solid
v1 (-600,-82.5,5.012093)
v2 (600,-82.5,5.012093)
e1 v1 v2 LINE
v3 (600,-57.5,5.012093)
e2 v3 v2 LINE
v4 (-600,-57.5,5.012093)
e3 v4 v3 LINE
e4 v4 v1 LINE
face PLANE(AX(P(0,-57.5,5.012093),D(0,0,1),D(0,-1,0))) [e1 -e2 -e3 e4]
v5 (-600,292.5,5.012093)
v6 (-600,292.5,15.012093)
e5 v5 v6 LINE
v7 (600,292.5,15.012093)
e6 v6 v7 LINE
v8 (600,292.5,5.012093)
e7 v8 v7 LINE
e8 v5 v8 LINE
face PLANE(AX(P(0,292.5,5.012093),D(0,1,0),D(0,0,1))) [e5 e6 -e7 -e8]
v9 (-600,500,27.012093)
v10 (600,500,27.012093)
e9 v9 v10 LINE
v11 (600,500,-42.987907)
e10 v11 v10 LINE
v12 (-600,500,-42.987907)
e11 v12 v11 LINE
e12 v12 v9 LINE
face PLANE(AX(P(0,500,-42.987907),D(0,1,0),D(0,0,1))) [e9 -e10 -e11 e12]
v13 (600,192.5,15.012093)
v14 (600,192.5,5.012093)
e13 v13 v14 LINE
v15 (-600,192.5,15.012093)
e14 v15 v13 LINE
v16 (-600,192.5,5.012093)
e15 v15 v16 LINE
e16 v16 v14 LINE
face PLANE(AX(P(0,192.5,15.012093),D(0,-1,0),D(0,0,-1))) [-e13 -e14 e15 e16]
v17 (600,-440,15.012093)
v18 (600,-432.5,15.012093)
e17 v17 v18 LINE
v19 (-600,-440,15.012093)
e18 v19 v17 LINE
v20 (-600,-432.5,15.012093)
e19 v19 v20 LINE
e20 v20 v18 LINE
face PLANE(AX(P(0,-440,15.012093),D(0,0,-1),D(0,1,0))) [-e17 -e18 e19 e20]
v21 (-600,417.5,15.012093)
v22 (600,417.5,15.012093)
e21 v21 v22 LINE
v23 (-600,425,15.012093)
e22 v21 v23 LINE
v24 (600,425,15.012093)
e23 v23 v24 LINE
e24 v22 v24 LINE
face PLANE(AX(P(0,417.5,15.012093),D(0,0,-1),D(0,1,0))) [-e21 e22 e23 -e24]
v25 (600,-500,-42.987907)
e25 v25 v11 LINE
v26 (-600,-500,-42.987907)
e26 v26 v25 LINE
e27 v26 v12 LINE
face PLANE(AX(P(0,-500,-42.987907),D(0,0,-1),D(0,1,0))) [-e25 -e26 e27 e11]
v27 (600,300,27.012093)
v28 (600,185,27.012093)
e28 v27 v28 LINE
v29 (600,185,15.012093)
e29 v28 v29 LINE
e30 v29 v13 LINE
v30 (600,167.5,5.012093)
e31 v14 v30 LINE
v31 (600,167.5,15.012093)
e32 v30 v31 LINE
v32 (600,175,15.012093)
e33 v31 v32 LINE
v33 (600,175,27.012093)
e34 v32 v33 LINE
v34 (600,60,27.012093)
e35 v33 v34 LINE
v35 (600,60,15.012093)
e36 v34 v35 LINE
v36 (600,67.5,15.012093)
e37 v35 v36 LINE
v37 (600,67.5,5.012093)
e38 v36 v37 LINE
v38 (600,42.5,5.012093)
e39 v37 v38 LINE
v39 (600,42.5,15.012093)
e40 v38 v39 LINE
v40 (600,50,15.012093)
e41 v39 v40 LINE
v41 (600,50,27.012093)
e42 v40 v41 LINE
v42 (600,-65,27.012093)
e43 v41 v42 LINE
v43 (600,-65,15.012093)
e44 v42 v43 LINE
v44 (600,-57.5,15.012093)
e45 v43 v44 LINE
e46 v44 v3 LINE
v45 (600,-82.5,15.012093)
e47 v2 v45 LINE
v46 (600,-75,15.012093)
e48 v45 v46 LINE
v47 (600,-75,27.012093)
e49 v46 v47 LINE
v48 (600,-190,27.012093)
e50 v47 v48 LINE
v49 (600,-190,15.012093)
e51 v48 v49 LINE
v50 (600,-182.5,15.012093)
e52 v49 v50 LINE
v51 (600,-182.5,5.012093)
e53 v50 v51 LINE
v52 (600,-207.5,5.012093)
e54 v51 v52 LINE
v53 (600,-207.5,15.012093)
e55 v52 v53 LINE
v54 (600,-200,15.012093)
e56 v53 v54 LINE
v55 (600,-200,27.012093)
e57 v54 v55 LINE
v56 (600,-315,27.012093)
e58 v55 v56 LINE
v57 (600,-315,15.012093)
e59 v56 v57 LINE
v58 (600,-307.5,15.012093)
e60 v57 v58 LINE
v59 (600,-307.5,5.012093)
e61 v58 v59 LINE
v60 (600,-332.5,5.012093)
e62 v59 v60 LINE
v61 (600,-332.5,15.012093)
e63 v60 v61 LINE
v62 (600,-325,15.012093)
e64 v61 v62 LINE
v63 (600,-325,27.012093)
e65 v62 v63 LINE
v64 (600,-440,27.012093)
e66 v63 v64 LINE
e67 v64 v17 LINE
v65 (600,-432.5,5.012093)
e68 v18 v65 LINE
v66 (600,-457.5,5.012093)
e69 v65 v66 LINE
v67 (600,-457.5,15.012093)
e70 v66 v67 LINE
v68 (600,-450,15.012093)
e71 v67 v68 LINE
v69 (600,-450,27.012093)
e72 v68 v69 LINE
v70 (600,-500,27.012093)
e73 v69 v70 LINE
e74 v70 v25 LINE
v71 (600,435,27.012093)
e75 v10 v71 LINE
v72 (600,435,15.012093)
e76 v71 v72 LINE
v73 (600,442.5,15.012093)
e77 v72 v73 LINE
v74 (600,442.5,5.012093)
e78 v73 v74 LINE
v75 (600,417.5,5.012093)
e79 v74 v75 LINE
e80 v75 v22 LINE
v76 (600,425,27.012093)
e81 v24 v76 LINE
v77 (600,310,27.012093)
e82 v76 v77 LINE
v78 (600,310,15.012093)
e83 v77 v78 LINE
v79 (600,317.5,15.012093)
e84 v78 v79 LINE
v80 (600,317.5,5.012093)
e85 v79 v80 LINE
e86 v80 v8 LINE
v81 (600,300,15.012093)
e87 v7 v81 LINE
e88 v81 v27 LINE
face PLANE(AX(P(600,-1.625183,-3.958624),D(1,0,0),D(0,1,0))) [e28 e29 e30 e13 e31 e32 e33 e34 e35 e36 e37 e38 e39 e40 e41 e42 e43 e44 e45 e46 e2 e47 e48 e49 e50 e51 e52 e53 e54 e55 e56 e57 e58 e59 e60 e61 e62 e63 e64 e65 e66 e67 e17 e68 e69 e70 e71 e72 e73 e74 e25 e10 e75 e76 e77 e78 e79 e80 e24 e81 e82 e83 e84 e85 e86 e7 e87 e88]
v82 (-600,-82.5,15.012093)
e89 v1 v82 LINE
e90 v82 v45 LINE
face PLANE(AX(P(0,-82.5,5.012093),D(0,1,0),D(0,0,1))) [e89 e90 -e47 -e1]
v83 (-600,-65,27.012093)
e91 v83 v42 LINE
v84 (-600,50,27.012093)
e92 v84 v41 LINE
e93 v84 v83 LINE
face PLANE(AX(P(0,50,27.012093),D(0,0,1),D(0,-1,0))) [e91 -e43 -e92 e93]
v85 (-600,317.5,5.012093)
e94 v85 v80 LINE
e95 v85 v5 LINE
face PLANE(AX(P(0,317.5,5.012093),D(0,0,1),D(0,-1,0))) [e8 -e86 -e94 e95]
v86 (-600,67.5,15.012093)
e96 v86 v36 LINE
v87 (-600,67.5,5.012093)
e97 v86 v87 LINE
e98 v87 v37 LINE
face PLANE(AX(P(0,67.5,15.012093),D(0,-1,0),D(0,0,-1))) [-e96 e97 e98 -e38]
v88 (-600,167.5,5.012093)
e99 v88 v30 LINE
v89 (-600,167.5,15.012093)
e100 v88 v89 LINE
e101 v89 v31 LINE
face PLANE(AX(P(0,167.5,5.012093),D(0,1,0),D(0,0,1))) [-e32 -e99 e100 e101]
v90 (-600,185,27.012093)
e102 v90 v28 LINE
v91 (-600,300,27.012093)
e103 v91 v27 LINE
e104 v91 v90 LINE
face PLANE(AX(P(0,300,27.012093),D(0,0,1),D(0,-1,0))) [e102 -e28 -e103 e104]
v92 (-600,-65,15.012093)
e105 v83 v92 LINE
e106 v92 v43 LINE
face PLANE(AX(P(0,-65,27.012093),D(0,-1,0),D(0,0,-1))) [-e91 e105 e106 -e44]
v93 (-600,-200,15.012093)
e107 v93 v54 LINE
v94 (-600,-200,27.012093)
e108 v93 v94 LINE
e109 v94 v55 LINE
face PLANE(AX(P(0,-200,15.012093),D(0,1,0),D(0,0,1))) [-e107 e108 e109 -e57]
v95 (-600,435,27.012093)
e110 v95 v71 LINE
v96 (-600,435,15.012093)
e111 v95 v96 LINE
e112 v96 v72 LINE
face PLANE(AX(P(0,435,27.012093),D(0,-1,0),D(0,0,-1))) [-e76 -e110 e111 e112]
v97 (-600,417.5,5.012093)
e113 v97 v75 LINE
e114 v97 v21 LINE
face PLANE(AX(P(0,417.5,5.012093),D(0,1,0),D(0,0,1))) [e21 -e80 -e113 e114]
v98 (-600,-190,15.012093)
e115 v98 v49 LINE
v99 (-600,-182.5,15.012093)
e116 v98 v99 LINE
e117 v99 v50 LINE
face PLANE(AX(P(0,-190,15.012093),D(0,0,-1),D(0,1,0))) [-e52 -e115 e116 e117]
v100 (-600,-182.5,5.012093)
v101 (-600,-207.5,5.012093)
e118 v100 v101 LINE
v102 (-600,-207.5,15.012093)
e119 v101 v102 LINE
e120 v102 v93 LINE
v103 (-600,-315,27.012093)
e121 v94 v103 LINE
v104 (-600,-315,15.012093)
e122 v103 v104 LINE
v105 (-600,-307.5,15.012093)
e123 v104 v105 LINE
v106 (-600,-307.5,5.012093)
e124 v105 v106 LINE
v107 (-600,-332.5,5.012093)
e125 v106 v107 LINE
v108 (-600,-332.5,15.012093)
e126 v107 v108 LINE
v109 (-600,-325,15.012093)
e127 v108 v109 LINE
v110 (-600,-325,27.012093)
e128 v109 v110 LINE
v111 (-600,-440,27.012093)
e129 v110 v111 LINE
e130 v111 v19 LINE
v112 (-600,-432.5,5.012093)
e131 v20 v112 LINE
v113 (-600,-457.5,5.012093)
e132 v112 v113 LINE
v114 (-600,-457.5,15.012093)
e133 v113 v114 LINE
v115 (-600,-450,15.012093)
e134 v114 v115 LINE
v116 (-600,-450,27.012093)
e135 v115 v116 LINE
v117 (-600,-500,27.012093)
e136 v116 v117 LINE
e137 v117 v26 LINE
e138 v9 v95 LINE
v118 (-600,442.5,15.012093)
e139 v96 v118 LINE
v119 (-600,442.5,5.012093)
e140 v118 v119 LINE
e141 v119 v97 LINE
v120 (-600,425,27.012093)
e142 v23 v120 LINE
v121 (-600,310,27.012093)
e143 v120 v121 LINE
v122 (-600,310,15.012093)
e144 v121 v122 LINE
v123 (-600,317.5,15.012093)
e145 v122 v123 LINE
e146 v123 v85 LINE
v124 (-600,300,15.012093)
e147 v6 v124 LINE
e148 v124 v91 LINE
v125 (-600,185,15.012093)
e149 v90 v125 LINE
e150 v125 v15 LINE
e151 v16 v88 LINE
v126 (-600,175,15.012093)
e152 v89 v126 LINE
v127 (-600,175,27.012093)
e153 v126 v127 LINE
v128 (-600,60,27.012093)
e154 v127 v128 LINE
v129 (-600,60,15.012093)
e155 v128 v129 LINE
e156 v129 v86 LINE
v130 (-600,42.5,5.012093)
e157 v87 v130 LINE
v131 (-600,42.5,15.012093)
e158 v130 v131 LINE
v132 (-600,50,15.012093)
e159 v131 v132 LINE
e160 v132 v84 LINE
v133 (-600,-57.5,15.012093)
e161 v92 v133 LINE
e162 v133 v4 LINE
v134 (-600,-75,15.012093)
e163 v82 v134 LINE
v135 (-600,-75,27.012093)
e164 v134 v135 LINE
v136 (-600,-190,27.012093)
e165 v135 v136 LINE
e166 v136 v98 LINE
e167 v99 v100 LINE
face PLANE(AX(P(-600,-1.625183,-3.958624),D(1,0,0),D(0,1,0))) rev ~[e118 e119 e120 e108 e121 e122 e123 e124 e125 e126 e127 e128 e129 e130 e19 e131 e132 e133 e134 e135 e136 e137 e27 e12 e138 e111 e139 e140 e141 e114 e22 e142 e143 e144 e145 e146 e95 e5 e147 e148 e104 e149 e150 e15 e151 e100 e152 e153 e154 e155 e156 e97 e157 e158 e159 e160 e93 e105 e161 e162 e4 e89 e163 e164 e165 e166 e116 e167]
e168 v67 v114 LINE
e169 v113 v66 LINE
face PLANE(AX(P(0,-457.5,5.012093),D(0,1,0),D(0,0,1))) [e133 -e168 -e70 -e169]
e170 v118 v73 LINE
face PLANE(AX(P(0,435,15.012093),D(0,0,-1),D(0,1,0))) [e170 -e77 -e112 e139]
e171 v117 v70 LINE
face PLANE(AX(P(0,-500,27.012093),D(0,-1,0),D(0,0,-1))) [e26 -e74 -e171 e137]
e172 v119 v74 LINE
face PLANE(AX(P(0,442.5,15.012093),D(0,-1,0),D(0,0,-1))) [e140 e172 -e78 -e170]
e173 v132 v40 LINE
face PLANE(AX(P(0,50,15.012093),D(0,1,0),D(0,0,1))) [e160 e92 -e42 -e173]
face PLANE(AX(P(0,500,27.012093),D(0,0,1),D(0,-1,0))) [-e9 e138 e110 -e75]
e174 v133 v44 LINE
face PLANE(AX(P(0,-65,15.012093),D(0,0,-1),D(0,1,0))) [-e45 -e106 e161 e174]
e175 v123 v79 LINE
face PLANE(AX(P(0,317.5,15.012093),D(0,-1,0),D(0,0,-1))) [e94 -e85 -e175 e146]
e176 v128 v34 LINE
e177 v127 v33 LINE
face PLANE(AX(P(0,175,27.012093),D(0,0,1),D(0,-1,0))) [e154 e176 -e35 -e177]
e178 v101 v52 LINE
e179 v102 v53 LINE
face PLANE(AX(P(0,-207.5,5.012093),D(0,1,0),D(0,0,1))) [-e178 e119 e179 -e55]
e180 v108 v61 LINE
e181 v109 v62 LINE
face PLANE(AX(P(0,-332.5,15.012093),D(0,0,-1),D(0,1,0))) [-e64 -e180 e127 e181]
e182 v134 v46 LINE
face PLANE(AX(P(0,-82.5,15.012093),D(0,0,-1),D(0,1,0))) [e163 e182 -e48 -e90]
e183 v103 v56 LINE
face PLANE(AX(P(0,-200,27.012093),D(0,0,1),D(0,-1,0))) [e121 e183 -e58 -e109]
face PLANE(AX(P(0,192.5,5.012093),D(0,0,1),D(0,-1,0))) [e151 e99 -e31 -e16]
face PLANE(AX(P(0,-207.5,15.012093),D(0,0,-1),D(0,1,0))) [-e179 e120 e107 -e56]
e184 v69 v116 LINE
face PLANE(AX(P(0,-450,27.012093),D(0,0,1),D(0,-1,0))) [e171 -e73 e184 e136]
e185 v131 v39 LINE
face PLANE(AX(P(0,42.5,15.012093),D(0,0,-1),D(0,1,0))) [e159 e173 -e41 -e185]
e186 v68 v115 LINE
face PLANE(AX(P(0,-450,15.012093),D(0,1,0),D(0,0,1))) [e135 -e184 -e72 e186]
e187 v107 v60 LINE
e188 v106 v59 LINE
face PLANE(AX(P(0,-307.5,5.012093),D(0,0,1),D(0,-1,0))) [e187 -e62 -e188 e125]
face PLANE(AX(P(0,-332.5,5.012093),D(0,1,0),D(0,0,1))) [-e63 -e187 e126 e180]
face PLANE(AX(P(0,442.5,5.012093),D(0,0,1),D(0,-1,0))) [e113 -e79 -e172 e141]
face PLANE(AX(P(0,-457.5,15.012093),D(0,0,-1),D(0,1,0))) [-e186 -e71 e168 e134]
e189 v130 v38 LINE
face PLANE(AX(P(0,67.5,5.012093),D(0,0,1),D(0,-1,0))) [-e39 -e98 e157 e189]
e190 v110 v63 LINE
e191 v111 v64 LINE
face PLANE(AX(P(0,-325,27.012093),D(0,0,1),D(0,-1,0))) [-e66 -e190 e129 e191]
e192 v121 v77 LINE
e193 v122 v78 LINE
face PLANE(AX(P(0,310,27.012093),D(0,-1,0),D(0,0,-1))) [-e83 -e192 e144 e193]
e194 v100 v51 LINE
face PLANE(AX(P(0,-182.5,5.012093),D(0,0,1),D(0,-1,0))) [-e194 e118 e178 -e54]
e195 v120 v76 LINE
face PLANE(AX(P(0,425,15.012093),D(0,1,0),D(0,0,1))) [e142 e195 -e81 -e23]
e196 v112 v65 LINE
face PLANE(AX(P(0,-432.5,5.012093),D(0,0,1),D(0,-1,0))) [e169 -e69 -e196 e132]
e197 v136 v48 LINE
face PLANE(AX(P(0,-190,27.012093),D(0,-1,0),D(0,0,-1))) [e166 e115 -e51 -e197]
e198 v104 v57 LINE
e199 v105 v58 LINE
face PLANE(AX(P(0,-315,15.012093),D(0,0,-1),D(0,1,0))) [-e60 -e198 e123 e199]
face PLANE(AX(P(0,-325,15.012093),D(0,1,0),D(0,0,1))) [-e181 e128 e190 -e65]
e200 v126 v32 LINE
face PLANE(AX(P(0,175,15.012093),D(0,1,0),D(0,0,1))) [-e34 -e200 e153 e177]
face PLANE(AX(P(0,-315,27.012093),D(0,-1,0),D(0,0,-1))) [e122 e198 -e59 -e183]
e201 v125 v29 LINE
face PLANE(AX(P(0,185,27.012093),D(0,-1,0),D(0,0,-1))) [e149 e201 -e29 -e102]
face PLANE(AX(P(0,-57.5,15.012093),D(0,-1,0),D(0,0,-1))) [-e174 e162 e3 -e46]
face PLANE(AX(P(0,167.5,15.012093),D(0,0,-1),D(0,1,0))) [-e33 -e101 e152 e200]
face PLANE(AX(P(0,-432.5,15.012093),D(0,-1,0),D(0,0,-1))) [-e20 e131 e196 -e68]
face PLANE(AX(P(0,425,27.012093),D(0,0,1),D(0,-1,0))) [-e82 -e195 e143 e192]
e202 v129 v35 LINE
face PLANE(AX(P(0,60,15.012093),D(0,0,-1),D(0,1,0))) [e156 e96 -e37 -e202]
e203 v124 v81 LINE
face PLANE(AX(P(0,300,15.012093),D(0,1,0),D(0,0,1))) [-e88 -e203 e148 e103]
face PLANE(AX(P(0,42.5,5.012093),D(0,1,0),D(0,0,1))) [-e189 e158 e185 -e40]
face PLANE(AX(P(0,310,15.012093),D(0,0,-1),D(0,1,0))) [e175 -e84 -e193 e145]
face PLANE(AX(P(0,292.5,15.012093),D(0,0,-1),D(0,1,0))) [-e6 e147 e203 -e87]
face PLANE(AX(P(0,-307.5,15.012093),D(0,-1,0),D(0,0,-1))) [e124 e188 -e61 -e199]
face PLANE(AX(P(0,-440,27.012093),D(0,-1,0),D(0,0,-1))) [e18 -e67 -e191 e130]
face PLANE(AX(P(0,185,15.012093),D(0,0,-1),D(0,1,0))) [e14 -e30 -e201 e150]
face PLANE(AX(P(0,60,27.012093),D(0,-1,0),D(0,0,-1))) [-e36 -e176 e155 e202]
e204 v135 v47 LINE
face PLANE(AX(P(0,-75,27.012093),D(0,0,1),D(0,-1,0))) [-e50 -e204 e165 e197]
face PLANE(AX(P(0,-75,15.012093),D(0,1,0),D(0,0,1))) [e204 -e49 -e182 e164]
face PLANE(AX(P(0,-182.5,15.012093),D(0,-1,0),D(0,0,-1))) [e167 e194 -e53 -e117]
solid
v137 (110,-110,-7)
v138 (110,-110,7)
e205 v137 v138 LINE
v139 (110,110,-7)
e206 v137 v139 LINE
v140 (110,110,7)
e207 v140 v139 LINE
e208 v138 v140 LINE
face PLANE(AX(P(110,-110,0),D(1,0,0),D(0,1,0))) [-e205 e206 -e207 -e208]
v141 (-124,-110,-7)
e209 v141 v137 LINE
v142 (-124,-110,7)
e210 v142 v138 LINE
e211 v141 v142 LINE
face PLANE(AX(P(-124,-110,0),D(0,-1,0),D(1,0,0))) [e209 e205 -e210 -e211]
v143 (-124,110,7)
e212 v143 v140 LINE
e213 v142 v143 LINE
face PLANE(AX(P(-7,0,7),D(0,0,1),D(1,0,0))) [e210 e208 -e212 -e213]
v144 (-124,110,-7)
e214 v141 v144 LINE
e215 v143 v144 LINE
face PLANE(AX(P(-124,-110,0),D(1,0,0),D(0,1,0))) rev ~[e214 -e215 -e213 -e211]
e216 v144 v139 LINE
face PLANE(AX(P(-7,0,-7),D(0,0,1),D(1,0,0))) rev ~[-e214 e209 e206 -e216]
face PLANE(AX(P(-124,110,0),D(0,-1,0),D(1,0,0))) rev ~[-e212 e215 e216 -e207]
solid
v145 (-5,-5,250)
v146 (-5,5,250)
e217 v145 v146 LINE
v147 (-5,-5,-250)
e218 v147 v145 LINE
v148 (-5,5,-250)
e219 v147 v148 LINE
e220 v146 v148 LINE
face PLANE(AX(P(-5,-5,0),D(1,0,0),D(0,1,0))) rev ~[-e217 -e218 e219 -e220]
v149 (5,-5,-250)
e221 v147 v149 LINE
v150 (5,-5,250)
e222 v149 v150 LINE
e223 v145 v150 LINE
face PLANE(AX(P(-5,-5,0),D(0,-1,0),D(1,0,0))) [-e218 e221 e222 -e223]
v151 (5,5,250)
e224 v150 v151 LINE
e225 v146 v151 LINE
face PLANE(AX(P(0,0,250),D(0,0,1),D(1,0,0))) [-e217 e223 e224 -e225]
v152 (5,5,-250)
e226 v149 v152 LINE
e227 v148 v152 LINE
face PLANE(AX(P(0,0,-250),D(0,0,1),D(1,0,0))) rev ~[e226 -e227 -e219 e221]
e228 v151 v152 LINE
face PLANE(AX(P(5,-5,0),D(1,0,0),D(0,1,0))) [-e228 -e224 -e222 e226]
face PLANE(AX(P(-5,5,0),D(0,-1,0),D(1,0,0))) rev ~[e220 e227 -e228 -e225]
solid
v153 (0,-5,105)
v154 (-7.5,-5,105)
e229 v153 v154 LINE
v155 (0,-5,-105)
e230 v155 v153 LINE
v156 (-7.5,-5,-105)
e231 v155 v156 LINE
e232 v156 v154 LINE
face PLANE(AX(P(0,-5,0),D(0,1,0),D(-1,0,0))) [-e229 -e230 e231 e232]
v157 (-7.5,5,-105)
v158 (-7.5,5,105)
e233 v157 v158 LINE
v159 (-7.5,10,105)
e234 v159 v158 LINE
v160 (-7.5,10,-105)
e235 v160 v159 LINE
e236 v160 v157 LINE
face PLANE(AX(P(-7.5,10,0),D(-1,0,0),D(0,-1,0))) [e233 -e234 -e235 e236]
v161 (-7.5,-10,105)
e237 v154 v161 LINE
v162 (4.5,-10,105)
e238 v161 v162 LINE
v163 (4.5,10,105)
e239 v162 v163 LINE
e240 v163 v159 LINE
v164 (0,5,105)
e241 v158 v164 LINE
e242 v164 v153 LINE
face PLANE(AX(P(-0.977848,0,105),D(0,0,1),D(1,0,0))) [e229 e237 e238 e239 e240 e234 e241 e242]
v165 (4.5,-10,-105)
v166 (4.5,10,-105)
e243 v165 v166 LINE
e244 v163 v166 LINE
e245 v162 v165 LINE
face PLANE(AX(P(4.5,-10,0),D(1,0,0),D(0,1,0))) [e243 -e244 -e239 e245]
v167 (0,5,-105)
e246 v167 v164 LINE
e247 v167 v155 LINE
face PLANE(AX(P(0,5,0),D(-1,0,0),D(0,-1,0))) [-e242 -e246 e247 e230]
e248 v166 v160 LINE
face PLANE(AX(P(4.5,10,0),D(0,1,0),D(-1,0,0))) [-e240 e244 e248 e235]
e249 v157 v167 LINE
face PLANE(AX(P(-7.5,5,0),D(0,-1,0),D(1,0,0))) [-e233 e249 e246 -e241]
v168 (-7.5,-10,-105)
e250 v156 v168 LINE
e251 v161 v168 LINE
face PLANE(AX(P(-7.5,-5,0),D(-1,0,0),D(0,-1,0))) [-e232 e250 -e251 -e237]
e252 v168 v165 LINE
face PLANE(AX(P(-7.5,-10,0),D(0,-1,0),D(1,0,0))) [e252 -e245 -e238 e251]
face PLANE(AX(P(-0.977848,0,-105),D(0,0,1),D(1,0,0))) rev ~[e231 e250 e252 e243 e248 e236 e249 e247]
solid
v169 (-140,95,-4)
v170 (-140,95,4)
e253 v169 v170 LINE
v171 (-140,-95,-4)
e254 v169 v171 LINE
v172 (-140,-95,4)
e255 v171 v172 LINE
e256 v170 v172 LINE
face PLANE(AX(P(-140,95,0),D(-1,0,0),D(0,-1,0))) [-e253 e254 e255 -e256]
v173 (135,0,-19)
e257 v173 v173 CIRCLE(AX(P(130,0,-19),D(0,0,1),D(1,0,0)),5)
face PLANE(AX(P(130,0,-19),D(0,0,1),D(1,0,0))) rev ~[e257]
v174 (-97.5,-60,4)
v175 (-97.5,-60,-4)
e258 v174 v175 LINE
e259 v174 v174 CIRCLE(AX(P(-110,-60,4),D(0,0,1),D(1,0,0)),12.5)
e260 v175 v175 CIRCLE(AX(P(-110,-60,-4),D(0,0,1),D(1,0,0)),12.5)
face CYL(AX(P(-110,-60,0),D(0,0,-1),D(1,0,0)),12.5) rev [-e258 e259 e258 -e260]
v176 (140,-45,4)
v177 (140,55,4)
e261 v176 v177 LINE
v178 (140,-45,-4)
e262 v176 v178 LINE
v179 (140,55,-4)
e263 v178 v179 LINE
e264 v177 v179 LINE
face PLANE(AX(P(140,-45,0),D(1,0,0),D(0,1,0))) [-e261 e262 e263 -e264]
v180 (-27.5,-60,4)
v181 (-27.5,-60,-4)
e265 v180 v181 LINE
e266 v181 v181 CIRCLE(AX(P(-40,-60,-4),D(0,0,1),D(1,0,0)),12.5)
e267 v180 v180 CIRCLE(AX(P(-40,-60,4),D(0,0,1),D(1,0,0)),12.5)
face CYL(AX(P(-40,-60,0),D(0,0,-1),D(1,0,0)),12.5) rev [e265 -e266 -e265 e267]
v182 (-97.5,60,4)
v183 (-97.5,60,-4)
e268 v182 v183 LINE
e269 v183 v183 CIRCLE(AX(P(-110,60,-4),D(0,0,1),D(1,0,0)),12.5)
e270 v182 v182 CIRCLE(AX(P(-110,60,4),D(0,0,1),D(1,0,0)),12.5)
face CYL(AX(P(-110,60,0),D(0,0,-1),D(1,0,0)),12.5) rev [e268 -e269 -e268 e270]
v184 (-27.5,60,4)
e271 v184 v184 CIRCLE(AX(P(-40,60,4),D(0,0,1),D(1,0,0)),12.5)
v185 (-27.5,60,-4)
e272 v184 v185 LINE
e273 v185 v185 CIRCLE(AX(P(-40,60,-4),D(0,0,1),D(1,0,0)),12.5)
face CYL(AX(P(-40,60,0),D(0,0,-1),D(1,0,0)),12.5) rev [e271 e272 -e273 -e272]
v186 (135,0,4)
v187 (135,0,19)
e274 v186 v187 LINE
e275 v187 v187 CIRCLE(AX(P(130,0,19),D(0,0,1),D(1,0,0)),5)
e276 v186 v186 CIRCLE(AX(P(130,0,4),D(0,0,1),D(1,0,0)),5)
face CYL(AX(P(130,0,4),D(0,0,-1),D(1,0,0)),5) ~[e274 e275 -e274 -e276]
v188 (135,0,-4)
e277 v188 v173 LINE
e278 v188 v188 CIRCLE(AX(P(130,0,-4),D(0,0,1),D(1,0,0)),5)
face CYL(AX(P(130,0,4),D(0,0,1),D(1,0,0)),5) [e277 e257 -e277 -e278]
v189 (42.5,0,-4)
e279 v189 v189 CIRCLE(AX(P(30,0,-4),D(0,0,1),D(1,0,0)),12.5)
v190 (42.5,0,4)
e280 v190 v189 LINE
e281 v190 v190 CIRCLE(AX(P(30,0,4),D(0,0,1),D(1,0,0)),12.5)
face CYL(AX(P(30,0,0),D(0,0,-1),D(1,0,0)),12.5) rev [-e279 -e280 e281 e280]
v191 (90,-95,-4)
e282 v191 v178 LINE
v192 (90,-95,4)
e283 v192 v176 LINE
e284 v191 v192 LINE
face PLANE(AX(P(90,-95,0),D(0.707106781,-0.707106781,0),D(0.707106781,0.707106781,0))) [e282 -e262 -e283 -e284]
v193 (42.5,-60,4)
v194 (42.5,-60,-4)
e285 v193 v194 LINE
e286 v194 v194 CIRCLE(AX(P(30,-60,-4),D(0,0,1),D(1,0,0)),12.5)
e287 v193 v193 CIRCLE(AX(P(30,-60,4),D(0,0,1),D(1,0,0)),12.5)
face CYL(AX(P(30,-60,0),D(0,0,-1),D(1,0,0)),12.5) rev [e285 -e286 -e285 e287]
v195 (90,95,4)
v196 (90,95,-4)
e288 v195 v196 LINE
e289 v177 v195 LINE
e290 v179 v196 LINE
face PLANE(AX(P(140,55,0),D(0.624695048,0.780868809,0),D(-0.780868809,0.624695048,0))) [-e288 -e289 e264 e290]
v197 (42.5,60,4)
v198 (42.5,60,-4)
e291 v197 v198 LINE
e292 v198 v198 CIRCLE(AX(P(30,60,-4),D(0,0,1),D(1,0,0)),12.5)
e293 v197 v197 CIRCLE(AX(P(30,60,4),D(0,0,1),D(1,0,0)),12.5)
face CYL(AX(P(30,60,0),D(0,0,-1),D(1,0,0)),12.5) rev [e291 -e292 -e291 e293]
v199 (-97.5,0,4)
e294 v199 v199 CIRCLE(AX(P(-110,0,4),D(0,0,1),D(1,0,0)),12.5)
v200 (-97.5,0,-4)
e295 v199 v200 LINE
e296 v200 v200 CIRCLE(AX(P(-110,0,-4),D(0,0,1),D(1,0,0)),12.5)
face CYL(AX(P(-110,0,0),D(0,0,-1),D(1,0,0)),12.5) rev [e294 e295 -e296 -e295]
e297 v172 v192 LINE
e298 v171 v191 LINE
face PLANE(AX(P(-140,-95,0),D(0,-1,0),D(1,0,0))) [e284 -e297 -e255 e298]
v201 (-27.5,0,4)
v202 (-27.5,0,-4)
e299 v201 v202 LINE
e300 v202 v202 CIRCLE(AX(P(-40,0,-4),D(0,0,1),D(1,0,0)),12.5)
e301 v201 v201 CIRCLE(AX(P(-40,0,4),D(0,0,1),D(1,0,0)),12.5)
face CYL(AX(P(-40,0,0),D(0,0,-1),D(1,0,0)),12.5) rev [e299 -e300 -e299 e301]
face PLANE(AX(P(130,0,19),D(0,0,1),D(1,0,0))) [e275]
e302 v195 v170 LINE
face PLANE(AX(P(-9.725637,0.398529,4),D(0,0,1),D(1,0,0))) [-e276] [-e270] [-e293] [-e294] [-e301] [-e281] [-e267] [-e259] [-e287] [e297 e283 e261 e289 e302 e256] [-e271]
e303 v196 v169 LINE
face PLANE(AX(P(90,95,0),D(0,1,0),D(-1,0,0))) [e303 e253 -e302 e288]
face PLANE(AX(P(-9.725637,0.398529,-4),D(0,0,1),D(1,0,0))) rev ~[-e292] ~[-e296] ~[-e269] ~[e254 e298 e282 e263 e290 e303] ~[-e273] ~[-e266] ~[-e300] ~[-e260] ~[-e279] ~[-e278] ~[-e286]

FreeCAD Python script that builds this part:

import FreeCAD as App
import Part
import Sketcher

V = App.Vector
Q = App.Units.Quantity

doc = App.newDocument("Part")
body = doc.addObject("PartDesign::Body", "Body")

sketch1 = body.newObject("Sketcher::SketchObject", "Sketch")
sketch1.AttachmentSupport = (doc.getObject("YZ_Plane"), [""])
sketch1.MapMode = "FlatFace"
sketch1.addGeometry([
    Part.LineSegment(V(-450, 27, 0), V(-500, 27, 0)),
    Part.LineSegment(V(-500, 27, 0), V(-500, -43, 0)),
    Part.LineSegment(V(-500, -43, 0), V(500, -43, 0)),
    Part.LineSegment(V(500, -43, 0), V(500, 27, 0)),
    Part.LineSegment(V(500, 27, 0), V(435, 27, 0)),
    Part.LineSegment(V(435, 27, 0), V(435, 15, 0)),
    Part.LineSegment(V(435, 15, 0), V(442, 15, 0)),
    Part.LineSegment(V(442, 15, 0), V(442, 5, 0)),
    Part.LineSegment(V(442, 5, 0), V(418, 5, 0)),
    Part.LineSegment(V(418, 5, 0), V(418, 15, 0)),
    Part.LineSegment(V(418, 15, 0), V(425, 15, 0)),
    Part.LineSegment(V(425, 15, 0), V(425, 27, 0)),
    Part.LineSegment(V(425, 27, 0), V(310, 27, 0)),
    Part.LineSegment(V(310, 27, 0), V(310, 15, 0)),
    Part.LineSegment(V(310, 15, 0), V(318, 15, 0)),
    Part.LineSegment(V(318, 15, 0), V(318, 5, 0)),
    Part.LineSegment(V(318, 5, 0), V(292, 5, 0)),
    Part.LineSegment(V(292, 5, 0), V(292, 15, 0)),
    Part.LineSegment(V(292, 15, 0), V(300, 15, 0)),
    Part.LineSegment(V(300, 15, 0), V(300, 27, 0)),
    Part.LineSegment(V(300, 27, 0), V(185, 27, 0)),
    Part.LineSegment(V(185, 27, 0), V(185, 15, 0)),
    Part.LineSegment(V(185, 15, 0), V(192, 15, 0)),
    Part.LineSegment(V(192, 15, 0), V(192, 5, 0)),
    Part.LineSegment(V(192, 5, 0), V(168, 5, 0)),
    Part.LineSegment(V(168, 5, 0), V(168, 15, 0)),
    Part.LineSegment(V(168, 15, 0), V(175, 15, 0)),
    Part.LineSegment(V(175, 15, 0), V(175, 27, 0)),
    Part.LineSegment(V(175, 27, 0), V(60, 27, 0)),
    Part.LineSegment(V(60, 27, 0), V(60, 15, 0)),
    Part.LineSegment(V(60, 15, 0), V(68, 15, 0)),
    Part.LineSegment(V(68, 15, 0), V(68, 5, 0)),
    Part.LineSegment(V(68, 5, 0), V(42, 5, 0)),
    Part.LineSegment(V(42, 5, 0), V(42, 15, 0)),
    Part.LineSegment(V(42, 15, 0), V(50, 15, 0)),
    Part.LineSegment(V(50, 15, 0), V(50, 27, 0)),
    Part.LineSegment(V(50, 27, 0), V(-65, 27, 0)),
    Part.LineSegment(V(-65, 27, 0), V(-65, 15, 0)),
    Part.LineSegment(V(-65, 15, 0), V(-58, 15, 0)),
    Part.LineSegment(V(-58, 15, 0), V(-58, 5, 0)),
    Part.LineSegment(V(-58, 5, 0), V(-82, 5, 0)),
    Part.LineSegment(V(-82, 5, 0), V(-82, 15, 0)),
    Part.LineSegment(V(-82, 15, 0), V(-75, 15, 0)),
    Part.LineSegment(V(-75, 15, 0), V(-75, 27, 0)),
    Part.LineSegment(V(-75, 27, 0), V(-190, 27, 0)),
    Part.LineSegment(V(-190, 27, 0), V(-190, 15, 0)),
    Part.LineSegment(V(-190, 15, 0), V(-182, 15, 0)),
    Part.LineSegment(V(-182, 15, 0), V(-182, 5, 0)),
    Part.LineSegment(V(-182, 5, 0), V(-208, 5, 0)),
    Part.LineSegment(V(-208, 5, 0), V(-208, 15, 0)),
    Part.LineSegment(V(-208, 15, 0), V(-200, 15, 0)),
    Part.LineSegment(V(-200, 15, 0), V(-200, 27, 0)),
    Part.LineSegment(V(-200, 27, 0), V(-315, 27, 0)),
    Part.LineSegment(V(-315, 27, 0), V(-315, 15, 0)),
    Part.LineSegment(V(-315, 15, 0), V(-308, 15, 0)),
    Part.LineSegment(V(-308, 15, 0), V(-308, 5, 0)),
    Part.LineSegment(V(-308, 5, 0), V(-332, 5, 0)),
    Part.LineSegment(V(-332, 5, 0), V(-332, 15, 0)),
    Part.LineSegment(V(-332, 15, 0), V(-325, 15, 0)),
    Part.LineSegment(V(-325, 15, 0), V(-325, 27, 0)),
    Part.LineSegment(V(-325, 27, 0), V(-440, 27, 0)),
    Part.LineSegment(V(-440, 27, 0), V(-440, 15, 0)),
    Part.LineSegment(V(-440, 15, 0), V(-432, 15, 0)),
    Part.LineSegment(V(-432, 15, 0), V(-432, 5, 0)),
    Part.LineSegment(V(-432, 5, 0), V(-458, 5, 0)),
    Part.LineSegment(V(-458, 5, 0), V(-458, 15, 0)),
    Part.LineSegment(V(-458, 15, 0), V(-450, 15, 0)),
    Part.LineSegment(V(-450, 15, 0), V(-450, 27, 0)),
], False)
sketch1.addConstraint([
    Sketcher.Constraint("Coincident", 0, 2, 1, 1),
    Sketcher.Constraint("Coincident", 1, 2, 2, 1),
    Sketcher.Constraint("Coincident", 2, 2, 3, 1),
    Sketcher.Constraint("Coincident", 3, 2, 4, 1),
    Sketcher.Constraint("Coincident", 4, 2, 5, 1),
    Sketcher.Constraint("Coincident", 5, 2, 6, 1),
    Sketcher.Constraint("Coincident", 6, 2, 7, 1),
    Sketcher.Constraint("Coincident", 7, 2, 8, 1),
    Sketcher.Constraint("Coincident", 8, 2, 9, 1),
    Sketcher.Constraint("Coincident", 9, 2, 10, 1),
    Sketcher.Constraint("Coincident", 10, 2, 11, 1),
    Sketcher.Constraint("Coincident", 11, 2, 12, 1),
    Sketcher.Constraint("Coincident", 12, 2, 13, 1),
    Sketcher.Constraint("Coincident", 13, 2, 14, 1),
    Sketcher.Constraint("Coincident", 14, 2, 15, 1),
    Sketcher.Constraint("Coincident", 15, 2, 16, 1),
    Sketcher.Constraint("Coincident", 16, 2, 17, 1),
    Sketcher.Constraint("Coincident", 17, 2, 18, 1),
    Sketcher.Constraint("Coincident", 18, 2, 19, 1),
    Sketcher.Constraint("Coincident", 19, 2, 20, 1),
    Sketcher.Constraint("Coincident", 20, 2, 21, 1),
    Sketcher.Constraint("Coincident", 21, 2, 22, 1),
    Sketcher.Constraint("Coincident", 22, 2, 23, 1),
    Sketcher.Constraint("Coincident", 23, 2, 24, 1),
    Sketcher.Constraint("Coincident", 24, 2, 25, 1),
    Sketcher.Constraint("Coincident", 25, 2, 26, 1),
    Sketcher.Constraint("Coincident", 26, 2, 27, 1),
    Sketcher.Constraint("Coincident", 27, 2, 28, 1),
    Sketcher.Constraint("Coincident", 28, 2, 29, 1),
    Sketcher.Constraint("Coincident", 29, 2, 30, 1),
    Sketcher.Constraint("Coincident", 30, 2, 31, 1),
    Sketcher.Constraint("Coincident", 31, 2, 32, 1),
    Sketcher.Constraint("Coincident", 32, 2, 33, 1),
    Sketcher.Constraint("Coincident", 33, 2, 34, 1),
    Sketcher.Constraint("Coincident", 34, 2, 35, 1),
    Sketcher.Constraint("Coincident", 35, 2, 36, 1),
    Sketcher.Constraint("Coincident", 36, 2, 37, 1),
    Sketcher.Constraint("Coincident", 37, 2, 38, 1),
    Sketcher.Constraint("Coincident", 38, 2, 39, 1),
    Sketcher.Constraint("Coincident", 39, 2, 40, 1),
    Sketcher.Constraint("Coincident", 40, 2, 41, 1),
    Sketcher.Constraint("Coincident", 41, 2, 42, 1),
    Sketcher.Constraint("Coincident", 42, 2, 43, 1),
    Sketcher.Constraint("Coincident", 43, 2, 44, 1),
    Sketcher.Constraint("Coincident", 44, 2, 45, 1),
    Sketcher.Constraint("Coincident", 45, 2, 46, 1),
    Sketcher.Constraint("Coincident", 46, 2, 47, 1),
    Sketcher.Constraint("Coincident", 47, 2, 48, 1),
    Sketcher.Constraint("Coincident", 48, 2, 49, 1),
    Sketcher.Constraint("Coincident", 49, 2, 50, 1),
    Sketcher.Constraint("Coincident", 50, 2, 51, 1),
    Sketcher.Constraint("Coincident", 51, 2, 52, 1),
    Sketcher.Constraint("Coincident", 52, 2, 53, 1),
    Sketcher.Constraint("Coincident", 53, 2, 54, 1),
    Sketcher.Constraint("Coincident", 54, 2, 55, 1),
    Sketcher.Constraint("Coincident", 55, 2, 56, 1),
    Sketcher.Constraint("Coincident", 56, 2, 57, 1),
    Sketcher.Constraint("Coincident", 57, 2, 58, 1),
    Sketcher.Constraint("Coincident", 58, 2, 59, 1),
    Sketcher.Constraint("Coincident", 59, 2, 60, 1),
    Sketcher.Constraint("Coincident", 60, 2, 61, 1),
    Sketcher.Constraint("Coincident", 61, 2, 62, 1),
    Sketcher.Constraint("Coincident", 62, 2, 63, 1),
    Sketcher.Constraint("Coincident", 63, 2, 64, 1),
    Sketcher.Constraint("Coincident", 64, 2, 65, 1),
    Sketcher.Constraint("Coincident", 65, 2, 66, 1),
    Sketcher.Constraint("Coincident", 66, 2, 67, 1),
    Sketcher.Constraint("Coincident", 67, 2, 0, 1),
    Sketcher.Constraint("Horizontal", 0),
    Sketcher.Constraint("Vertical", 1),
    Sketcher.Constraint("Horizontal", 2),
    Sketcher.Constraint("Vertical", 3),
    Sketcher.Constraint("Horizontal", 4),
    Sketcher.Constraint("Vertical", 5),
    Sketcher.Constraint("Horizontal", 6),
    Sketcher.Constraint("Vertical", 7),
    Sketcher.Constraint("Horizontal", 8),
    Sketcher.Constraint("Vertical", 9),
    Sketcher.Constraint("Horizontal", 10),
    Sketcher.Constraint("Vertical", 11),
    Sketcher.Constraint("Horizontal", 12),
    Sketcher.Constraint("Vertical", 13),
    Sketcher.Constraint("Horizontal", 14),
    Sketcher.Constraint("Vertical", 15),
    Sketcher.Constraint("Horizontal", 16),
    Sketcher.Constraint("Vertical", 17),
    Sketcher.Constraint("Horizontal", 18),
    Sketcher.Constraint("Vertical", 19),
    Sketcher.Constraint("Horizontal", 20),
    Sketcher.Constraint("Vertical", 21),
    Sketcher.Constraint("Horizontal", 22),
    Sketcher.Constraint("Vertical", 23),
    Sketcher.Constraint("Horizontal", 24),
    Sketcher.Constraint("Vertical", 25),
    Sketcher.Constraint("Horizontal", 26),
    Sketcher.Constraint("Vertical", 27),
    Sketcher.Constraint("Horizontal", 28),
    Sketcher.Constraint("Vertical", 29),
    Sketcher.Constraint("Horizontal", 30),
    Sketcher.Constraint("Vertical", 31),
    Sketcher.Constraint("Horizontal", 32),
    Sketcher.Constraint("Vertical", 33),
    Sketcher.Constraint("Horizontal", 34),
    Sketcher.Constraint("Vertical", 35),
    Sketcher.Constraint("Horizontal", 36),
    Sketcher.Constraint("Vertical", 37),
    Sketcher.Constraint("Horizontal", 38),
    Sketcher.Constraint("Vertical", 39),
    Sketcher.Constraint("Horizontal", 40),
    Sketcher.Constraint("Vertical", 41),
    Sketcher.Constraint("Horizontal", 42),
    Sketcher.Constraint("Vertical", 43),
    Sketcher.Constraint("Horizontal", 44),
    Sketcher.Constraint("Vertical", 45),
    Sketcher.Constraint("Horizontal", 46),
    Sketcher.Constraint("Vertical", 47),
    Sketcher.Constraint("Horizontal", 48),
    Sketcher.Constraint("Vertical", 49),
    Sketcher.Constraint("Horizontal", 50),
    Sketcher.Constraint("Vertical", 51),
    Sketcher.Constraint("Horizontal", 52),
    Sketcher.Constraint("Vertical", 53),
    Sketcher.Constraint("Horizontal", 54),
    Sketcher.Constraint("Vertical", 55),
    Sketcher.Constraint("Horizontal", 56),
    Sketcher.Constraint("Vertical", 57),
    Sketcher.Constraint("Horizontal", 58),
    Sketcher.Constraint("Vertical", 59),
    Sketcher.Constraint("Horizontal", 60),
    Sketcher.Constraint("Vertical", 61),
    Sketcher.Constraint("Horizontal", 62),
    Sketcher.Constraint("Vertical", 63),
    Sketcher.Constraint("Horizontal", 64),
    Sketcher.Constraint("Vertical", 65),
    Sketcher.Constraint("Horizontal", 66),
    Sketcher.Constraint("Vertical", 67),
    Sketcher.Constraint("Symmetric", 0, 2, 3, 2, -2),
    Sketcher.Constraint("Horizontal", 6, 2, 9, 2),
    Sketcher.Constraint("Horizontal", 4, 2, 11, 2),
    Sketcher.Constraint("Horizontal", 10, 2, 13, 2),
    Sketcher.Constraint("Horizontal", 8, 2, 15, 2),
    Sketcher.Constraint("Horizontal", 14, 2, 17, 2),
    Sketcher.Constraint("Horizontal", 12, 2, 19, 2),
    Sketcher.Constraint("Horizontal", 18, 2, 21, 2),
    Sketcher.Constraint("Horizontal", 16, 2, 23, 2),
    Sketcher.Constraint("Horizontal", 22, 2, 25, 2),
    Sketcher.Constraint("Horizontal", 20, 2, 27, 2),
    Sketcher.Constraint("Horizontal", 26, 2, 29, 2),
    Sketcher.Constraint("Horizontal", 24, 2, 31, 2),
    Sketcher.Constraint("Horizontal", 30, 2, 33, 2),
    Sketcher.Constraint("Horizontal", 28, 2, 35, 2),
    Sketcher.Constraint("Horizontal", 34, 2, 37, 2),
    Sketcher.Constraint("Horizontal", 32, 2, 39, 2),
    Sketcher.Constraint("Horizontal", 38, 2, 41, 2),
    Sketcher.Constraint("Horizontal", 36, 2, 43, 2),
    Sketcher.Constraint("Horizontal", 42, 2, 45, 2),
    Sketcher.Constraint("Horizontal", 40, 2, 47, 2),
    Sketcher.Constraint("Horizontal", 46, 2, 49, 2),
    Sketcher.Constraint("Horizontal", 44, 2, 51, 2),
    Sketcher.Constraint("Horizontal", 50, 2, 53, 2),
    Sketcher.Constraint("Horizontal", 48, 2, 55, 2),
    Sketcher.Constraint("Horizontal", 54, 2, 57, 2),
    Sketcher.Constraint("Horizontal", 52, 2, 59, 2),
    Sketcher.Constraint("Horizontal", 58, 2, 61, 2),
    Sketcher.Constraint("Horizontal", 56, 2, 63, 2),
    Sketcher.Constraint("Horizontal", 62, 2, 65, 2),
    Sketcher.Constraint("Equal", 6, 10),
    Sketcher.Constraint("Equal", 10, 14),
    Sketcher.Constraint("Equal", 8, 16),
    Sketcher.Constraint("Equal", 14, 18),
    Sketcher.Constraint("Equal", 12, 20),
    Sketcher.Constraint("Equal", 18, 22),
    Sketcher.Constraint("Equal", 16, 24),
    Sketcher.Constraint("Equal", 22, 26),
    Sketcher.Constraint("Equal", 20, 28),
    Sketcher.Constraint("Equal", 26, 30),
    Sketcher.Constraint("Equal", 24, 32),
    Sketcher.Constraint("Equal", 30, 34),
    Sketcher.Constraint("Equal", 28, 36),
    Sketcher.Constraint("Equal", 34, 38),
    Sketcher.Constraint("Equal", 32, 40),
    Sketcher.Constraint("Equal", 38, 42),
    Sketcher.Constraint("Equal", 36, 44),
    Sketcher.Constraint("Equal", 42, 46),
    Sketcher.Constraint("Equal", 40, 48),
    Sketcher.Constraint("Equal", 46, 50),
    Sketcher.Constraint("Equal", 44, 52),
    Sketcher.Constraint("Equal", 50, 54),
    Sketcher.Constraint("Equal", 48, 56),
    Sketcher.Constraint("Equal", 54, 58),
    Sketcher.Constraint("Equal", 52, 60),
    Sketcher.Constraint("Equal", 58, 62),
    Sketcher.Constraint("Equal", 56, 64),
    Sketcher.Constraint("Equal", 62, 66),
    Sketcher.Constraint("DistanceX", 0, 2, 0, 1, Q("50 mm")),
    Sketcher.Constraint("DistanceX", 2, 1, 2, 2, Q("1000 mm")),
    Sketcher.Constraint("DistanceX", 4, 2, 4, 1, Q("65 mm")),
    Sketcher.Constraint("DistanceX", 8, 2, 8, 1, Q("25 mm")),
    Sketcher.Constraint("DistanceX", 12, 2, 12, 1, Q("115 mm")),
    Sketcher.Constraint("DistanceY", 1, 2, 1, 1, Q("70 mm")),
    Sketcher.Constraint("DistanceY", 5, 2, 5, 1, Q("12 mm")),
    Sketcher.Constraint("DistanceY", 7, 2, 7, 1, Q("10 mm")),
    Sketcher.Constraint("DistanceY", -1, 1, 0, 2, Q("27.012093 mm")),
])
pad1 = body.newObject("PartDesign::Pad", "Pad")
pad1.Profile = sketch1
pad1.Type = "TwoLengths"
pad1.Length = 600
pad1.Length2 = 600
body2 = doc.addObject("PartDesign::Body", "Body001")

sketch2 = body2.newObject("Sketcher::SketchObject", "Sketch001")
sketch2.AttachmentSupport = (doc.getObject("XY_Plane001"), [""])
sketch2.MapMode = "FlatFace"
sketch2.addGeometry([
    Part.LineSegment(V(90, 95, 0), V(-140, 95, 0)),
    Part.LineSegment(V(-140, 95, 0), V(-140, -95, 0)),
    Part.LineSegment(V(-140, -95, 0), V(90, -95, 0)),
    Part.LineSegment(V(90, -95, 0), V(140, -45, 0)),
    Part.LineSegment(V(140, -45, 0), V(140, 55, 0)),
    Part.LineSegment(V(140, 55, 0), V(90, 95, 0)),
    Part.Circle(V(-110, -60, 0), V(0, 0, 1), 12),
    Part.Circle(V(-40, -60, 0), V(0, 0, 1), 12),
    Part.Circle(V(30, -60, 0), V(0, 0, 1), 12),
    Part.Circle(V(-110, 0, 0), V(0, 0, 1), 12),
    Part.Circle(V(-40, 0, 0), V(0, 0, 1), 12),
    Part.Circle(V(-110, 60, 0), V(0, 0, 1), 12),
    Part.Circle(V(-40, 60, 0), V(0, 0, 1), 12),
    Part.Circle(V(30, 0, 0), V(0, 0, 1), 12),
    Part.Circle(V(130, 0, 0), V(0, 0, 1), 5),
    Part.Circle(V(30, 60, 0), V(0, 0, 1), 12),
], False)
sketch2.addConstraint([
    Sketcher.Constraint("Coincident", 0, 2, 1, 1),
    Sketcher.Constraint("Coincident", 1, 2, 2, 1),
    Sketcher.Constraint("Coincident", 2, 2, 3, 1),
    Sketcher.Constraint("Coincident", 3, 2, 4, 1),
    Sketcher.Constraint("Coincident", 4, 2, 5, 1),
    Sketcher.Constraint("Coincident", 5, 2, 0, 1),
    Sketcher.Constraint("Horizontal", 0),
    Sketcher.Constraint("Vertical", 1),
    Sketcher.Constraint("Horizontal", 2),
    Sketcher.Constraint("Vertical", 4),
    Sketcher.Constraint("Equal", 6, 7),
    Sketcher.Constraint("Equal", 7, 8),
    Sketcher.Constraint("Equal", 8, 9),
    Sketcher.Constraint("Equal", 9, 10),
    Sketcher.Constraint("Equal", 10, 11),
    Sketcher.Constraint("Equal", 11, 12),
    Sketcher.Constraint("Equal", 12, 13),
    Sketcher.Constraint("Equal", 13, 15),
    Sketcher.Constraint("Symmetric", 6, 3, 11, 3, -1),
    Sketcher.Constraint("Symmetric", 7, 3, 12, 3, -1),
    Sketcher.Constraint("Symmetric", 8, 3, 15, 3, -1),
    Sketcher.Constraint("Symmetric", 2, 2, 5, 2, -1),
    Sketcher.Constraint("PointOnObject", 9, 3, -1),
    Sketcher.Constraint("PointOnObject", 10, 3, -1),
    Sketcher.Constraint("PointOnObject", 13, 3, -1),
    Sketcher.Constraint("PointOnObject", 14, 3, -1),
    Sketcher.Constraint("Horizontal", 6, 3, 7, 3),
    Sketcher.Constraint("Horizontal", 7, 3, 8, 3),
    Sketcher.Constraint("Vertical", 6, 3, 9, 3),
    Sketcher.Constraint("Vertical", 7, 3, 10, 3),
    Sketcher.Constraint("Vertical", 8, 3, 13, 3),
    Sketcher.Constraint("Diameter", 6, Q("25 mm")),
    Sketcher.Constraint("Diameter", 14, Q("10 mm")),
    Sketcher.Constraint("DistanceX", 0, 2, 0, 1, Q("230 mm")),
    Sketcher.Constraint("DistanceY", 1, 2, 1, 1, Q("190 mm")),
    Sketcher.Constraint("DistanceY", 4, 1, 4, 2, Q("100 mm")),
    Sketcher.Constraint("Angle", 3, Q("45 deg")),
    Sketcher.Constraint("DistanceX", 6, 3, -1, 1, Q("110 mm")),
    Sketcher.Constraint("DistanceY", 6, 3, -1, 1, Q("60 mm")),
    Sketcher.Constraint("DistanceX", 7, 3, -1, 1, Q("40 mm")),
    Sketcher.Constraint("DistanceX", -1, 1, 8, 3, Q("30 mm")),
    Sketcher.Constraint("DistanceX", -1, 1, 14, 3, Q("130 mm")),
    Sketcher.Constraint("DistanceX", 0, 2, -1, 1, Q("140 mm")),
    Sketcher.Constraint("DistanceX", -1, 1, 3, 2, Q("140 mm")),
])
pad2 = body2.newObject("PartDesign::Pad", "Pad001")
pad2.Profile = sketch2
pad2.Type = "TwoLengths"
pad2.Length = 4
pad2.Length2 = 4

sketch3 = body2.newObject("Sketcher::SketchObject", "Sketch002")
sketch3.AttachmentSupport = (doc.getObject("XY_Plane001"), [""])
sketch3.MapMode = "FlatFace"
sketch3.AttachmentOffset = App.Placement(V(0, 0, 4), App.Rotation())
sketch3.addGeometry(Part.Circle(V(130, 0, 0), V(0, 0, 1), 5), False)
sketch3.addConstraint([
    Sketcher.Constraint("PointOnObject", 0, 3, -1),
    Sketcher.Constraint("Diameter", 0, Q("10 mm")),
    Sketcher.Constraint("DistanceX", -1, 1, 0, 3, Q("130 mm")),
])
pad3 = body2.newObject("PartDesign::Pad", "Pad002")
pad3.Profile = sketch3
pad3.Type = "TwoLengths"
pad3.Length = 15
pad3.Length2 = 23
body3 = doc.addObject("PartDesign::Body", "Body002")

sketch4 = body3.newObject("Sketcher::SketchObject", "Sketch003")
sketch4.AttachmentSupport = (doc.getObject("XY_Plane002"), [""])
sketch4.MapMode = "FlatFace"
sketch4.addGeometry([
    Part.LineSegment(V(-5, 5, 0), V(-5, -5, 0)),
    Part.LineSegment(V(-5, -5, 0), V(5, -5, 0)),
    Part.LineSegment(V(5, -5, 0), V(5, 5, 0)),
    Part.LineSegment(V(5, 5, 0), V(-5, 5, 0)),
], False)
sketch4.addConstraint([
    Sketcher.Constraint("Coincident", 0, 2, 1, 1),
    Sketcher.Constraint("Coincident", 1, 2, 2, 1),
    Sketcher.Constraint("Coincident", 2, 2, 3, 1),
    Sketcher.Constraint("Coincident", 3, 2, 0, 1),
    Sketcher.Constraint("Vertical", 0),
    Sketcher.Constraint("Horizontal", 1),
    Sketcher.Constraint("Vertical", 2),
    Sketcher.Constraint("Horizontal", 3),
    Sketcher.Constraint("Symmetric", 0, 2, 2, 2, -1, 1),
    Sketcher.Constraint("Equal", 3, 0),
    Sketcher.Constraint("DistanceX", 1, 1, 1, 2, Q("10 mm")),
])
pad4 = body3.newObject("PartDesign::Pad", "Pad003")
pad4.Profile = sketch4
pad4.Type = "TwoLengths"
pad4.Length = 250
pad4.Length2 = 250
body4 = doc.addObject("PartDesign::Body", "Body003")

sketch5 = body4.newObject("Sketcher::SketchObject", "Sketch004")
sketch5.AttachmentSupport = (doc.getObject("XY_Plane003"), [""])
sketch5.MapMode = "FlatFace"
sketch5.addGeometry([
    Part.LineSegment(V(4, 10, 0), V(-8, 10, 0)),
    Part.LineSegment(V(-8, 10, 0), V(-8, 5, 0)),
    Part.LineSegment(V(-8, 5, 0), V(0, 5, 0)),
    Part.LineSegment(V(0, 5, 0), V(0, -5, 0)),
    Part.LineSegment(V(0, -5, 0), V(-8, -5, 0)),
    Part.LineSegment(V(-8, -5, 0), V(-8, -10, 0)),
    Part.LineSegment(V(-8, -10, 0), V(4, -10, 0)),
    Part.LineSegment(V(4, -10, 0), V(4, 10, 0)),
], False)
sketch5.addConstraint([
    Sketcher.Constraint("Coincident", 0, 2, 1, 1),
    Sketcher.Constraint("Coincident", 1, 2, 2, 1),
    Sketcher.Constraint("Coincident", 2, 2, 3, 1),
    Sketcher.Constraint("Coincident", 3, 2, 4, 1),
    Sketcher.Constraint("Coincident", 4, 2, 5, 1),
    Sketcher.Constraint("Coincident", 5, 2, 6, 1),
    Sketcher.Constraint("Coincident", 6, 2, 7, 1),
    Sketcher.Constraint("Coincident", 7, 2, 0, 1),
    Sketcher.Constraint("Horizontal", 0),
    Sketcher.Constraint("Vertical", 1),
    Sketcher.Constraint("Horizontal", 2),
    Sketcher.Constraint("Vertical", 3),
    Sketcher.Constraint("Horizontal", 4),
    Sketcher.Constraint("Vertical", 5),
    Sketcher.Constraint("Horizontal", 6),
    Sketcher.Constraint("Vertical", 7),
    Sketcher.Constraint("Symmetric", 2, 2, 3, 2, -1, 1),
    Sketcher.Constraint("Symmetric", 0, 2, 5, 2, -1),
    Sketcher.Constraint("DistanceX", 0, 2, 0, 1, Q("12 mm")),
    Sketcher.Constraint("DistanceY", 1, 2, 1, 1, Q("5 mm")),
    Sketcher.Constraint("DistanceY", 3, 2, 3, 1, Q("10 mm")),
    Sketcher.Constraint("DistanceX", 2, 1, 2, 2, Q("7.5 mm")),
])
pad5 = body4.newObject("PartDesign::Pad", "Pad004")
pad5.Profile = sketch5
pad5.Type = "TwoLengths"
pad5.Length = 105
pad5.Length2 = 105
body5 = doc.addObject("PartDesign::Body", "Body004")

sketch6 = body5.newObject("Sketcher::SketchObject", "Sketch005")
sketch6.AttachmentSupport = (doc.getObject("XY_Plane004"), [""])
sketch6.MapMode = "FlatFace"
sketch6.addGeometry([
    Part.LineSegment(V(-124, 110, 0), V(-124, -110, 0)),
    Part.LineSegment(V(-124, -110, 0), V(110, -110, 0)),
    Part.LineSegment(V(110, -110, 0), V(110, 110, 0)),
    Part.LineSegment(V(110, 110, 0), V(-124, 110, 0)),
], False)
sketch6.addConstraint([
    Sketcher.Constraint("Coincident", 0, 2, 1, 1),
    Sketcher.Constraint("Coincident", 1, 2, 2, 1),
    Sketcher.Constraint("Coincident", 2, 2, 3, 1),
    Sketcher.Constraint("Coincident", 3, 2, 0, 1),
    Sketcher.Constraint("Vertical", 0),
    Sketcher.Constraint("Horizontal", 1),
    Sketcher.Constraint("Vertical", 2),
    Sketcher.Constraint("Horizontal", 3),
    Sketcher.Constraint("DistanceX", 1, 1, 1, 2, Q("234 mm")),
    Sketcher.Constraint("DistanceY", 0, 2, 0, 1, Q("220 mm")),
    Sketcher.Constraint("DistanceX", 0, 2, -1, 1, Q("124 mm")),
    Sketcher.Constraint("DistanceY", 0, 2, -1, 1, Q("110 mm")),
])
pad6 = body5.newObject("PartDesign::Pad", "Pad005")
pad6.Profile = sketch6
pad6.Type = "TwoLengths"
pad6.Length = 7
pad6.Length2 = 7

doc.recompute()
